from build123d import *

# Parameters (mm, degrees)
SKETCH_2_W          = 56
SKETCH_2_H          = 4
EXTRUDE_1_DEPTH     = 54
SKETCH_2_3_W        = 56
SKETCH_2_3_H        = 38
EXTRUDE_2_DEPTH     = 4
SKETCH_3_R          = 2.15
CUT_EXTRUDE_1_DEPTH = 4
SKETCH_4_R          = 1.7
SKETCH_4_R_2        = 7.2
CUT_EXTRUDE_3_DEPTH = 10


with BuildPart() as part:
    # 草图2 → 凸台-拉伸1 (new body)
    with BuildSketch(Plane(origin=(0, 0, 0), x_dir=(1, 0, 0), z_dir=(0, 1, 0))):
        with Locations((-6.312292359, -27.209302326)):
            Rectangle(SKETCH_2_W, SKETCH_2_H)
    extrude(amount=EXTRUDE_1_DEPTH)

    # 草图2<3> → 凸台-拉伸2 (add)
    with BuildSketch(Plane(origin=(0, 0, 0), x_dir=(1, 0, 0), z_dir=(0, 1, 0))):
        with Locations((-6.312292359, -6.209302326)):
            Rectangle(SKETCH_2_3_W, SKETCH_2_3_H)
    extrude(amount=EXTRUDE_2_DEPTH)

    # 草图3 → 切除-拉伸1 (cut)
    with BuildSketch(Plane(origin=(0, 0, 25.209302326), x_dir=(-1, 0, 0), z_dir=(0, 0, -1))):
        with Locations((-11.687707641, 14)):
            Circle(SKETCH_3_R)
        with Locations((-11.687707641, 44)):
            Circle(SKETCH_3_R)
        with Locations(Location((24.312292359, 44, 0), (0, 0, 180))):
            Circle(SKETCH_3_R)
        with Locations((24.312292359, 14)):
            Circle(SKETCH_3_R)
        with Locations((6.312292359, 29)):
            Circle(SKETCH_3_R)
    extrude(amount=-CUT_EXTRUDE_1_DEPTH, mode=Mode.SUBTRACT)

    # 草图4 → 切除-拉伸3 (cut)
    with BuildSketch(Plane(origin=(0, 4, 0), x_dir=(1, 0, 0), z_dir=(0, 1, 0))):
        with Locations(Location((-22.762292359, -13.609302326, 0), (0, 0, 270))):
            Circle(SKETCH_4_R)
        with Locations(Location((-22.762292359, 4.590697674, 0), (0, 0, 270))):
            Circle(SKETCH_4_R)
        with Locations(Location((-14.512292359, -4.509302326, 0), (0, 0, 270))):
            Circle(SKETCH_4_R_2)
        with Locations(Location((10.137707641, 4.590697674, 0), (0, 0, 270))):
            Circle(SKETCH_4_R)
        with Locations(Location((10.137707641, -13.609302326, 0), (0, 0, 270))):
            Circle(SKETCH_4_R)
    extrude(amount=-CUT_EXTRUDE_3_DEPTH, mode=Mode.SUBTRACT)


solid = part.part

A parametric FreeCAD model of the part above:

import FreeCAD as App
import Part
import Sketcher
from FreeCAD import Vector


def add_polygon(sketch, points):
    """Adds a closed chain of lines whose ends are joined by coincident constraints."""
    first, n = sketch.GeometryCount, len(points)
    for a, b in zip(points, points[1:] + points[:1]):
        sketch.addGeometry(Part.LineSegment(App.Vector(*a, 0), App.Vector(*b, 0)), False)
    for i in range(n):
        sketch.addConstraint(Sketcher.Constraint("Coincident", first + i, 2, first + (i + 1) % n, 1))

doc = App.newDocument("Part")
params = doc.addObject("Spreadsheet::Sheet", "Params")
for row, (alias, value) in enumerate([
    ("sketch1_width", "56 mm"),
    ("sketch1_height", "4 mm"),
    ("pad1_length", "54 mm"),
    ("sketch2_width", "56 mm"),
    ("sketch2_height", "38 mm"),
    ("pad2_length", "4 mm"),
    ("sketch3_diameter", "4.3 mm"),
    ("pocket1_length", "4 mm"),
    ("sketch4_diameter", "3.4 mm"),
    ("sketch4_diameter2", "14.4 mm"),
    ("pocket2_length", "10 mm"),
], start=1):
    params.set(f"A{row}", alias)
    params.set(f"B{row}", "=" + value)
    params.setAlias(f"B{row}", alias)

body = doc.addObject("PartDesign::Body", "Body")

# Sketch on XZ plane
sketch1 = body.newObject("Sketcher::SketchObject", "Sketch")
sketch1.AttachmentSupport = (doc.getObject("XZ_Plane"), [""])
sketch1.MapMode = "FlatFace"
add_polygon(sketch1, [(-34.312292, 25.209302), (-34.312292, 29.209302), (21.687708, 29.209302), (21.687708, 25.209302)])  # lines 0-3
sketch1.addConstraint([
    Sketcher.Constraint("Vertical", 0),
    Sketcher.Constraint("Horizontal", 1),
    Sketcher.Constraint("Vertical", 2),
    Sketcher.Constraint("Horizontal", 3),
    Sketcher.Constraint("DistanceX", 1, 1, 1, 2, 56.0),
    Sketcher.Constraint("DistanceY", 0, 1, 0, 2, 4.0),
    Sketcher.Constraint("DistanceX", 0, 2, -1, 1, 34.312292),
    Sketcher.Constraint("DistanceY", -1, 1, 0, 2, 29.209302),
])
sketch1.setExpression("Constraints[8]", "Params.sketch1_width")
sketch1.setExpression("Constraints[9]", "Params.sketch1_height")
pad1 = body.newObject("PartDesign::Pad", "Pad")
pad1.Profile = sketch1
pad1.setExpression("Length", "Params.pad1_length")
pad1.Reversed = True

# Sketch on XZ plane
sketch2 = body.newObject("Sketcher::SketchObject", "Sketch001")
sketch2.AttachmentSupport = (doc.getObject("XZ_Plane"), [""])
sketch2.MapMode = "FlatFace"
add_polygon(sketch2, [(-34.312292, -12.790698), (-34.312292, 25.209302), (21.687708, 25.209302), (21.687708, -12.790698)])  # lines 0-3
sketch2.addConstraint([
    Sketcher.Constraint("Vertical", 0),
    Sketcher.Constraint("Horizontal", 1),
    Sketcher.Constraint("Vertical", 2),
    Sketcher.Constraint("Horizontal", 3),
    Sketcher.Constraint("DistanceX", 1, 1, 1, 2, 56.0),
    Sketcher.Constraint("DistanceY", 0, 1, 0, 2, 38.0),
    Sketcher.Constraint("DistanceX", 0, 2, -1, 1, 34.312292),
    Sketcher.Constraint("DistanceY", -1, 1, 0, 2, 25.209302),
])
sketch2.setExpression("Constraints[8]", "Params.sketch2_width")
sketch2.setExpression("Constraints[9]", "Params.sketch2_height")
pad2 = body.newObject("PartDesign::Pad", "Pad001")
pad2.Profile = sketch2
pad2.setExpression("Length", "Params.pad2_length")
pad2.Reversed = True

# Sketch on XY plane
sketch3 = body.newObject("Sketcher::SketchObject", "Sketch002")
sketch3.AttachmentSupport = (doc.getObject("XY_Plane"), [""])
sketch3.MapMode = "FlatFace"
sketch3.AttachmentOffset = App.Placement(Vector(0, 0, 25.209302), App.Rotation())
sketch3.addGeometry([
    Part.Circle(Vector(11.687708, 14, 0), Vector(0, 0, 1), 2.15),  # 0
    Part.Circle(Vector(11.687708, 44, 0), Vector(0, 0, 1), 2.15),  # 1
    Part.Circle(Vector(-24.312292, 44, 0), Vector(0, 0, 1), 2.15),  # 2
    Part.Circle(Vector(-24.312292, 14, 0), Vector(0, 0, 1), 2.15),  # 3
    Part.Circle(Vector(-6.312292, 29, 0), Vector(0, 0, 1), 2.15),  # 4
], False)
sketch3.addConstraint([
    Sketcher.Constraint("Equal", 0, 1),
    Sketcher.Constraint("Equal", 1, 2),
    Sketcher.Constraint("Equal", 2, 3),
    Sketcher.Constraint("Equal", 3, 4),
    Sketcher.Constraint("Horizontal", 1, 3, 2, 3),
    Sketcher.Constraint("Horizontal", 0, 3, 3, 3),
    Sketcher.Constraint("Vertical", 0, 3, 1, 3),
    Sketcher.Constraint("Vertical", 2, 3, 3, 3),
    Sketcher.Constraint("Diameter", 0, 4.3),
    Sketcher.Constraint("DistanceY", -1, 1, 0, 3, 14.0),
    Sketcher.Constraint("DistanceY", -1, 1, 1, 3, 44.0),
    Sketcher.Constraint("DistanceY", -1, 1, 4, 3, 29.0),
    Sketcher.Constraint("DistanceX", 2, 3, 1, 3, 36.0),
    Sketcher.Constraint("DistanceX", 4, 3, 0, 3, 18.0),
    Sketcher.Constraint("DistanceX", -1, 1, 0, 3, 11.687708),
])
sketch3.setExpression("Constraints[8]", "Params.sketch3_diameter")
pocket1 = body.newObject("PartDesign::Pocket", "Pocket")
pocket1.Profile = sketch3
pocket1.setExpression("Length", "Params.pocket1_length")
pocket1.Reversed = True

# Sketch on XZ plane
sketch4 = body.newObject("Sketcher::SketchObject", "Sketch003")
sketch4.AttachmentSupport = (doc.getObject("XZ_Plane"), [""])
sketch4.MapMode = "FlatFace"
sketch4.AttachmentOffset = App.Placement(Vector(0, 0, -4), App.Rotation())
sketch4.addGeometry([
    Part.Circle(Vector(-22.762292, 13.609302, 0), Vector(0, 0, 1), 1.7),  # 0
    Part.Circle(Vector(-22.762292, -4.590698, 0), Vector(0, 0, 1), 1.7),  # 1
    Part.Circle(Vector(-14.512292, 4.509302, 0), Vector(0, 0, 1), 7.2),  # 2
    Part.Circle(Vector(10.137708, -4.590698, 0), Vector(0, 0, 1), 1.7),  # 3
    Part.Circle(Vector(10.137708, 13.609302, 0), Vector(0, 0, 1), 1.7),  # 4
], False)
sketch4.addConstraint([
    Sketcher.Constraint("Equal", 0, 1),
    Sketcher.Constraint("Equal", 1, 3),
    Sketcher.Constraint("Equal", 3, 4),
    Sketcher.Constraint("Horizontal", 1, 3, 3, 3),
    Sketcher.Constraint("Horizontal", 0, 3, 4, 3),
    Sketcher.Constraint("Vertical", 0, 3, 1, 3),
    Sketcher.Constraint("Vertical", 3, 3, 4, 3),
    Sketcher.Constraint("Diameter", 0, 3.4),
    Sketcher.Constraint("Diameter", 2, 14.4),
    Sketcher.Constraint("DistanceY", 1, 3, 0, 3, 18.2),
    Sketcher.Constraint("DistanceY", 2, 3, 0, 3, 9.1),
    Sketcher.Constraint("DistanceX", 1, 3, 3, 3, 32.9),
    Sketcher.Constraint("DistanceX", 0, 3, 2, 3, 8.25),
    Sketcher.Constraint("DistanceX", 0, 3, -1, 1, 22.762292),
    Sketcher.Constraint("DistanceY", -1, 1, 0, 3, 13.609302),
])
sketch4.setExpression("Constraints[7]", "Params.sketch4_diameter")
sketch4.setExpression("Constraints[8]", "Params.sketch4_diameter2")
pocket2 = body.newObject("PartDesign::Pocket", "Pocket001")
pocket2.Profile = sketch4
pocket2.setExpression("Length", "Params.pocket2_length")
pocket2.Reversed = True

doc.recompute()
